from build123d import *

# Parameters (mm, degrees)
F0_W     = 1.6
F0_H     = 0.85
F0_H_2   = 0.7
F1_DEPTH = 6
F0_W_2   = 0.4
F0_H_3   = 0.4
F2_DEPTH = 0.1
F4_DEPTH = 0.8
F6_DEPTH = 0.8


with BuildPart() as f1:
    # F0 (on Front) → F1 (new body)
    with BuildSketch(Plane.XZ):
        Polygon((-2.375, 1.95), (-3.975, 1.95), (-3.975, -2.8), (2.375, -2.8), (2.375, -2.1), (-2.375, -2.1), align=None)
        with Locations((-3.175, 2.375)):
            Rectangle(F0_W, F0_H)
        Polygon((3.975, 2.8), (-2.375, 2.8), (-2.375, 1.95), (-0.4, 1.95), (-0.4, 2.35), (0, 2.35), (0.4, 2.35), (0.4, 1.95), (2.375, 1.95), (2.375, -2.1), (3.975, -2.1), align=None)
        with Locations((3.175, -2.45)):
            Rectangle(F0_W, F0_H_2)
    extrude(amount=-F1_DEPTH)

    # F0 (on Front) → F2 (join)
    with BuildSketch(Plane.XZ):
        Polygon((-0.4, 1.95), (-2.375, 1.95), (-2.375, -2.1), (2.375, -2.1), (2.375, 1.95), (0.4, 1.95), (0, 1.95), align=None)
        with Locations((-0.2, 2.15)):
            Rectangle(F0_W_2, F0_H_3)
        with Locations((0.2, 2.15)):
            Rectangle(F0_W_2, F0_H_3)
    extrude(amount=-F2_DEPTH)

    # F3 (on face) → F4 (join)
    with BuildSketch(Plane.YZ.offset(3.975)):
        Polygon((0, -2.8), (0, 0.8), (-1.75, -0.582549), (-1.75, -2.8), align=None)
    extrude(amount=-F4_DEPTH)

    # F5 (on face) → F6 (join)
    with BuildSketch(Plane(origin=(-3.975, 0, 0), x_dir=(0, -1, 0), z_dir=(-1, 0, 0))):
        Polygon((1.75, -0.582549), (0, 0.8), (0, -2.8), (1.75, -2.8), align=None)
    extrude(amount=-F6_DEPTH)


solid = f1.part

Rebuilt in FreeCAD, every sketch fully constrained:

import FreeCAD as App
import Part
import Sketcher
from FreeCAD import Vector
Q = App.Units.Quantity


def add_polygon(sketch, points):
    """Adds a closed chain of lines whose ends are joined by coincident constraints."""
    first, n = sketch.GeometryCount, len(points)
    for a, b in zip(points, points[1:] + points[:1]):
        sketch.addGeometry(Part.LineSegment(App.Vector(*a, 0), App.Vector(*b, 0)), False)
    for i in range(n):
        sketch.addConstraint(Sketcher.Constraint("Coincident", first + i, 2, first + (i + 1) % n, 1))

doc = App.newDocument("Part")
body = doc.addObject("PartDesign::Body", "Body")

sketch1 = doc.addObject("Sketcher::SketchObject", "Sketch")
body.addObject(sketch1)
sketch1.AttachmentSupport = (doc.XZ_Plane, [""])
sketch1.MapMode = "FlatFace"
add_polygon(sketch1, [(-3.98, -2.8), (3.98, -2.8), (3.98, 2.8), (-3.98, 2.8)])
add_polygon(sketch1, [(2.38, 1.95), (2.38, -2.1), (-2.38, -2.1), (-2.38, 1.95), (-0.4, 1.95), (-0.4, 2.35), (0.4, 2.35), (0.4, 1.95)])
sketch1.addConstraint([
    Sketcher.Constraint("Horizontal", 0),
    Sketcher.Constraint("Vertical", 1),
    Sketcher.Constraint("Horizontal", 2),
    Sketcher.Constraint("Vertical", 3),
    Sketcher.Constraint("Vertical", 4),
    Sketcher.Constraint("Horizontal", 5),
    Sketcher.Constraint("Vertical", 6),
    Sketcher.Constraint("Horizontal", 7),
    Sketcher.Constraint("Vertical", 8),
    Sketcher.Constraint("Horizontal", 9),
    Sketcher.Constraint("Vertical", 10),
    Sketcher.Constraint("Horizontal", 11),
    Sketcher.Constraint("Symmetric", 0, 2, 2, 2, -1, 1),
    Sketcher.Constraint("Symmetric", 7, 2, 10, 2, -2),
    Sketcher.Constraint("Equal", 7, 11),
    Sketcher.Constraint("DistanceX", 9, 1, 9, 2, Q("0.8 mm")),
    Sketcher.Constraint("DistanceY", 1, 1, 1, 2, Q("5.6 mm")),
    Sketcher.Constraint("DistanceY", 8, 1, 8, 2, Q("0.4 mm")),
    Sketcher.Constraint("DistanceX", 0, 1, 0, 2, Q("7.95 mm")),
    Sketcher.Constraint("DistanceX", 5, 2, 5, 1, Q("4.75 mm")),
    Sketcher.Constraint("DistanceY", 4, 2, 4, 1, Q("4.05 mm")),
    Sketcher.Constraint("DistanceY", 4, 2, -1, 1, Q("2.1 mm")),
])
pad1 = doc.addObject("PartDesign::Pad", "Pad")
body.addObject(pad1)
pad1.Profile = sketch1
pad1.Length = 6
pad1.Reversed = True

sketch2 = doc.addObject("Sketcher::SketchObject", "Sketch001")
body.addObject(sketch2)
sketch2.AttachmentSupport = (doc.XZ_Plane, [""])
sketch2.MapMode = "FlatFace"
add_polygon(sketch2, [(-2.38, 1.95), (-2.38, -2.1), (2.38, -2.1), (2.38, 1.95), (0.4, 1.95), (0.4, 2.35), (-0.4, 2.35), (-0.4, 1.95)])
sketch2.addConstraint([
    Sketcher.Constraint("Vertical", 0),
    Sketcher.Constraint("Horizontal", 1),
    Sketcher.Constraint("Vertical", 2),
    Sketcher.Constraint("Horizontal", 3),
    Sketcher.Constraint("Vertical", 4),
    Sketcher.Constraint("Horizontal", 5),
    Sketcher.Constraint("Vertical", 6),
    Sketcher.Constraint("Horizontal", 7),
    Sketcher.Constraint("Symmetric", 3, 2, 6, 2, -2),
    Sketcher.Constraint("Equal", 3, 7),
    Sketcher.Constraint("DistanceX", 5, 2, 5, 1, Q("0.8 mm")),
    Sketcher.Constraint("DistanceY", 4, 1, 4, 2, Q("0.4 mm")),
    Sketcher.Constraint("DistanceX", 1, 1, 1, 2, Q("4.75 mm")),
    Sketcher.Constraint("DistanceY", 0, 2, 0, 1, Q("4.05 mm")),
    Sketcher.Constraint("DistanceY", 0, 2, -1, 1, Q("2.1 mm")),
])
pad2 = doc.addObject("PartDesign::Pad", "Pad001")
body.addObject(pad2)
pad2.Profile = sketch2
pad2.Length = 0.1
pad2.Reversed = True

sketch3 = doc.addObject("Sketcher::SketchObject", "Sketch002")
body.addObject(sketch3)
sketch3.AttachmentSupport = (doc.YZ_Plane, [""])
sketch3.MapMode = "FlatFace"
sketch3.AttachmentOffset = App.Placement(Vector(0, 0, 3.975), App.Rotation())
add_polygon(sketch3, [(0, -2.8), (0, 0.8), (-1.8, -0.6), (-1.8, -2.8)])
sketch3.addConstraint([
    Sketcher.Constraint("Vertical", 0),
    Sketcher.Constraint("Vertical", 2),
    Sketcher.Constraint("Horizontal", 3),
    Sketcher.Constraint("PointOnObject", 0, 2, -2),
    Sketcher.Constraint("DistanceY", 0, 1, 0, 2, Q("3.6 mm")),
    Sketcher.Constraint("DistanceX", 3, 1, 3, 2, Q("1.75 mm")),
    Sketcher.Constraint("DistanceY", -1, 1, 0, 2, Q("0.8 mm")),
    Sketcher.Constraint("DistanceY", 2, 2, 2, 1, Q("2.217451 mm")),
])
pad3 = doc.addObject("PartDesign::Pad", "Pad002")
body.addObject(pad3)
pad3.Profile = sketch3
pad3.Length = 0.8
pad3.Reversed = True

sketch4 = doc.addObject("Sketcher::SketchObject", "Sketch003")
body.addObject(sketch4)
sketch4.AttachmentSupport = (doc.YZ_Plane, [""])
sketch4.MapMode = "FlatFace"
sketch4.AttachmentOffset = App.Placement(Vector(0, 0, -3.975), App.Rotation())
add_polygon(sketch4, [(-1.8, -0.6), (0, 0.8), (0, -2.8), (-1.8, -2.8)])
sketch4.addConstraint([
    Sketcher.Constraint("Vertical", 1),
    Sketcher.Constraint("Horizontal", 2),
    Sketcher.Constraint("Vertical", 3),
    Sketcher.Constraint("PointOnObject", 0, 2, -2),
    Sketcher.Constraint("DistanceY", 1, 2, 1, 1, Q("3.6 mm")),
    Sketcher.Constraint("DistanceX", 2, 2, 2, 1, Q("1.75 mm")),
    Sketcher.Constraint("DistanceY", -1, 1, 0, 2, Q("0.8 mm")),
    Sketcher.Constraint("DistanceY", 3, 1, 3, 2, Q("2.217451 mm")),
])
pad4 = doc.addObject("PartDesign::Pad", "Pad003")
body.addObject(pad4)
pad4.Profile = sketch4
pad4.Length = 0.8

doc.recompute()
